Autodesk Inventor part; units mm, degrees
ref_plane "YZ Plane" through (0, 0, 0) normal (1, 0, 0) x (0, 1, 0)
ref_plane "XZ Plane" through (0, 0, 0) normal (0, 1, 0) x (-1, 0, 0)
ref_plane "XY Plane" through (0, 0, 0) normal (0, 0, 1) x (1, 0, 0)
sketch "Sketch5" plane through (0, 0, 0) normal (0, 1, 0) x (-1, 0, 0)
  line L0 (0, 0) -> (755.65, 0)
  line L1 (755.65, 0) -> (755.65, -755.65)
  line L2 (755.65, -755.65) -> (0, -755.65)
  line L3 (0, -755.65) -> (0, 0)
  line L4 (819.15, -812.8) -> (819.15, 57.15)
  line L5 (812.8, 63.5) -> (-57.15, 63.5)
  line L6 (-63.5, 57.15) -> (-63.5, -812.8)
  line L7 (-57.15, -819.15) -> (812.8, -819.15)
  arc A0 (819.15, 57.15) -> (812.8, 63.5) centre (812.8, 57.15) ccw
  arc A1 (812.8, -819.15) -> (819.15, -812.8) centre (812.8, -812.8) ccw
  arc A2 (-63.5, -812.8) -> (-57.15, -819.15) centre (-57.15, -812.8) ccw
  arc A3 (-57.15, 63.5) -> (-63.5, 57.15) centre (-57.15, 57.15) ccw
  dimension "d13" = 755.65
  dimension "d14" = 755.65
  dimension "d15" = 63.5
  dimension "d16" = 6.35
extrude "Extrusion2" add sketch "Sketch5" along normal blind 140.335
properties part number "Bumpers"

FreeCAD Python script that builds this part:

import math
import FreeCAD as App
import Part
import Sketcher
Q = App.Units.Quantity


def add_polygon(sketch, points):
    """Adds a closed chain of lines whose ends are joined by coincident constraints."""
    first, n = sketch.GeometryCount, len(points)
    for a, b in zip(points, points[1:] + points[:1]):
        sketch.addGeometry(Part.LineSegment(App.Vector(*a, 0), App.Vector(*b, 0)), False)
    for i in range(n):
        sketch.addConstraint(Sketcher.Constraint("Coincident", first + i, 2, first + (i + 1) % n, 1))

doc = App.newDocument("Part")
params = doc.addObject("Spreadsheet::Sheet", "Params")
for row, (alias, value) in enumerate([
    ("sketch1_radius", "0.25 in"),
    ("sketch1_width", "29.75 in"),
    ("pad1_length", "5.525 in"),
], start=1):
    params.set(f"A{row}", alias)
    params.set(f"B{row}", "=" + value)
    params.setAlias(f"B{row}", alias)

body = doc.addObject("PartDesign::Body", "Body")

# Sketch on XZ plane
sketch1 = body.newObject("Sketcher::SketchObject", "Sketch")
sketch1.AttachmentSupport = (doc.getObject("XZ_Plane"), [""])
sketch1.MapMode = "FlatFace"
sketch1.addGeometry(Part.ArcOfCircle(Part.Circle(App.Vector(-813, -813, 0), App.Vector(0, 0, 1), 6), math.radians(180), math.radians(270)), False)  # 0
sketch1.addGeometry(Part.LineSegment(App.Vector(-819, -813, 0), App.Vector(-819, 57, 0)), False)  # 1
sketch1.addGeometry(Part.ArcOfCircle(Part.Circle(App.Vector(-813, 57, 0), App.Vector(0, 0, 1), 6), math.radians(90), math.radians(180)), False)  # 2
sketch1.addGeometry(Part.LineSegment(App.Vector(-813, 64, 0), App.Vector(57, 64, 0)), False)  # 3
sketch1.addGeometry(Part.ArcOfCircle(Part.Circle(App.Vector(57, 57, 0), App.Vector(0, 0, 1), 6), math.radians(0), math.radians(90)), False)  # 4
sketch1.addGeometry(Part.LineSegment(App.Vector(64, 57, 0), App.Vector(64, -813, 0)), False)  # 5
sketch1.addGeometry(Part.ArcOfCircle(Part.Circle(App.Vector(57, -813, 0), App.Vector(0, 0, 1), 6), math.radians(-90), math.radians(0)), False)  # 6
sketch1.addGeometry(Part.LineSegment(App.Vector(57, -819, 0), App.Vector(-813, -819, 0)), False)  # 7
add_polygon(sketch1, [(0, -756), (0, 0), (-756, 0), (-756, -756)])  # lines 8-11
sketch1.addConstraint([
    Sketcher.Constraint("Tangent", 0, 1, 1, 1),
    Sketcher.Constraint("Tangent", 1, 2, 2, 2),
    Sketcher.Constraint("Tangent", 2, 1, 3, 1),
    Sketcher.Constraint("Tangent", 3, 2, 4, 2),
    Sketcher.Constraint("Tangent", 4, 1, 5, 1),
    Sketcher.Constraint("Tangent", 5, 2, 6, 2),
    Sketcher.Constraint("Tangent", 6, 1, 7, 1),
    Sketcher.Constraint("Tangent", 7, 2, 0, 2),
    Sketcher.Constraint("Vertical", 1),
    Sketcher.Constraint("Horizontal", 3),
    Sketcher.Constraint("Vertical", 5),
    Sketcher.Constraint("Horizontal", 7),
    Sketcher.Constraint("Vertical", 8),
    Sketcher.Constraint("Horizontal", 9),
    Sketcher.Constraint("Vertical", 10),
    Sketcher.Constraint("Horizontal", 11),
    Sketcher.Constraint("Coincident", 8, 2, -1, 1),
    Sketcher.Constraint("Equal", 0, 2),
    Sketcher.Constraint("Equal", 2, 4),
    Sketcher.Constraint("Equal", 4, 6),
    Sketcher.Constraint("Equal", 7, 1),
    Sketcher.Constraint("Equal", 11, 8),
    Sketcher.Constraint("Radius", 0, Q("0.25 in")),
    Sketcher.Constraint("DistanceX", 9, 2, 9, 1, Q("29.75 in")),
    Sketcher.Constraint("DistanceY", -1, 1, 2, 1, Q("2.5 in")),
    Sketcher.Constraint("DistanceX", -1, 1, 4, 1, Q("2.5 in")),
    Sketcher.Constraint("DistanceX", 1, 2, 9, 2, Q("2.5 in")),
])
sketch1.setExpression("Constraints[26]", "Params.sketch1_radius")
sketch1.setExpression("Constraints[27]", "Params.sketch1_width")
pad1 = body.newObject("PartDesign::Pad", "Pad")
pad1.Profile = sketch1
pad1.setExpression("Length", "Params.pad1_length")
pad1.Reversed = True

doc.recompute()
